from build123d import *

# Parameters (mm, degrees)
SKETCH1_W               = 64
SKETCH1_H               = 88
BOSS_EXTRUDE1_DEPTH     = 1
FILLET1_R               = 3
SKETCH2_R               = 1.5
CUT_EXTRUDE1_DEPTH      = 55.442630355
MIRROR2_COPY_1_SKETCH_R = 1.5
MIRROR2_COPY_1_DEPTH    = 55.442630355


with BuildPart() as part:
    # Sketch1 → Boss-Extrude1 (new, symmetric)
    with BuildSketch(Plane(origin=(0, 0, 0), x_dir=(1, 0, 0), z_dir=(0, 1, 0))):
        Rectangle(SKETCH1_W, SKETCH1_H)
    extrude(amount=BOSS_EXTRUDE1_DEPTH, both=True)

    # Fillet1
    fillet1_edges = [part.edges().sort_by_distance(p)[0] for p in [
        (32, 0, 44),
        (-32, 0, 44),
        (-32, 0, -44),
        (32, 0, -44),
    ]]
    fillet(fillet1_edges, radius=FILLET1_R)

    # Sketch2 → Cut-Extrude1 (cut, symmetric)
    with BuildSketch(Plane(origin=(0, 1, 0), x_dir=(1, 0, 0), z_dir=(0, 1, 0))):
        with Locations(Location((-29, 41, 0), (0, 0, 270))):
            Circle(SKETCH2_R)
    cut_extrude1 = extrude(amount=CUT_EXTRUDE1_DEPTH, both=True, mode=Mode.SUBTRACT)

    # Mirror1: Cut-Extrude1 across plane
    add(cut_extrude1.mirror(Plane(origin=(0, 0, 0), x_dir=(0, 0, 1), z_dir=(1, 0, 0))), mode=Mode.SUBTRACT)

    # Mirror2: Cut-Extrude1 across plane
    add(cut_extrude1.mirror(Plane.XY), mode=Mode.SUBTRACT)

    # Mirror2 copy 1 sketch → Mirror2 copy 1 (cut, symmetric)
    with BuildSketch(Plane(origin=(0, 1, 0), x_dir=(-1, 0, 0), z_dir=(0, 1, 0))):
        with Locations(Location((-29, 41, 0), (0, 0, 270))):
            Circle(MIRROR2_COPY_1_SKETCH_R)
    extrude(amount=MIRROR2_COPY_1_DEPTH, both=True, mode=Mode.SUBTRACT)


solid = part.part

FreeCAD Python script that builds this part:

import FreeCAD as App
import Part
import Sketcher

V = App.Vector
Q = App.Units.Quantity


def edges_at(feature, points):
    """Names of the edges that pass closest to the given points."""
    edges = feature.Shape.Edges
    near = lambda p: min(range(len(edges)), key=lambda i: edges[i].distToShape(Part.Vertex(*p))[0])
    return sorted({f"Edge{near(p) + 1}" for p in points})


def add_polygon(sketch, points):
    """Adds a closed chain of lines whose ends are joined by coincident constraints."""
    first, n = sketch.GeometryCount, len(points)
    for a, b in zip(points, points[1:] + points[:1]):
        sketch.addGeometry(Part.LineSegment(App.Vector(*a, 0), App.Vector(*b, 0)), False)
    for i in range(n):
        sketch.addConstraint(Sketcher.Constraint("Coincident", first + i, 2, first + (i + 1) % n, 1))

doc = App.newDocument("Part")
body = doc.addObject("PartDesign::Body", "Body")

sketch1 = body.newObject("Sketcher::SketchObject", "Sketch")
sketch1.AttachmentSupport = (doc.getObject("XZ_Plane"), [""])
sketch1.MapMode = "FlatFace"
add_polygon(sketch1, [(-32, -44), (-32, 44), (32, 44), (32, -44)])
sketch1.addConstraint([
    Sketcher.Constraint("Vertical", 0),
    Sketcher.Constraint("Horizontal", 1),
    Sketcher.Constraint("Vertical", 2),
    Sketcher.Constraint("Horizontal", 3),
    Sketcher.Constraint("Symmetric", 0, 2, 2, 2, -1, 1),
    Sketcher.Constraint("DistanceX", 1, 1, 1, 2, Q("64 mm")),
    Sketcher.Constraint("DistanceY", 0, 1, 0, 2, Q("88 mm")),
])
pad1 = body.newObject("PartDesign::Pad", "Pad")
pad1.Profile = sketch1
pad1.Length = 2
pad1.Midplane = True
doc.recompute()

fillet = body.newObject("PartDesign::Fillet", "Fillet")
fillet.Base = (pad1, edges_at(pad1, [
    (32, 0, 44),
    (-32, 0, 44),
    (-32, 0, -44),
    (32, 0, -44),
]))
fillet.Radius = 3

sketch2 = body.newObject("Sketcher::SketchObject", "Sketch001")
sketch2.AttachmentSupport = (doc.getObject("XZ_Plane"), [""])
sketch2.MapMode = "FlatFace"
sketch2.AttachmentOffset = App.Placement(V(0, 0, -1), App.Rotation())
sketch2.addGeometry(Part.Circle(V(-29, -41, 0), V(0, 0, 1), 1.5), False)
sketch2.addConstraint([
    Sketcher.Constraint("Diameter", 0, Q("3 mm")),
    Sketcher.Constraint("DistanceX", 0, 3, -1, 1, Q("29 mm")),
    Sketcher.Constraint("DistanceY", 0, 3, -1, 1, Q("41 mm")),
])
pocket1 = body.newObject("PartDesign::Pocket", "Pocket")
pocket1.Profile = sketch2
pocket1.Length = 110.885261
pocket1.Midplane = True
doc.recompute()

mirrored = body.newObject("PartDesign::Mirrored", "Mirrored")
mirrored.Originals = [pocket1]
mirrored.MirrorPlane = (doc.getObject("YZ_Plane"), [""])
body.Tip = mirrored
doc.recompute()

mirrored2 = body.newObject("PartDesign::Mirrored", "Mirrored001")
mirrored2.Originals = [pocket1]
mirrored2.MirrorPlane = (doc.getObject("XY_Plane"), [""])
body.Tip = mirrored2

sketch3 = body.newObject("Sketcher::SketchObject", "Sketch002")
sketch3.AttachmentSupport = (doc.getObject("XZ_Plane"), [""])
sketch3.MapMode = "FlatFace"
sketch3.AttachmentOffset = App.Placement(V(0, 0, -1), App.Rotation())
sketch3.addGeometry(Part.Circle(V(29, 41, 0), V(0, 0, 1), 1.5), False)
sketch3.addConstraint([
    Sketcher.Constraint("Diameter", 0, Q("3 mm")),
    Sketcher.Constraint("DistanceX", -1, 1, 0, 3, Q("29 mm")),
    Sketcher.Constraint("DistanceY", -1, 1, 0, 3, Q("41 mm")),
])
pocket2 = body.newObject("PartDesign::Pocket", "Pocket001")
pocket2.Profile = sketch3
pocket2.Length = 110.885261
pocket2.Midplane = True

doc.recompute()
